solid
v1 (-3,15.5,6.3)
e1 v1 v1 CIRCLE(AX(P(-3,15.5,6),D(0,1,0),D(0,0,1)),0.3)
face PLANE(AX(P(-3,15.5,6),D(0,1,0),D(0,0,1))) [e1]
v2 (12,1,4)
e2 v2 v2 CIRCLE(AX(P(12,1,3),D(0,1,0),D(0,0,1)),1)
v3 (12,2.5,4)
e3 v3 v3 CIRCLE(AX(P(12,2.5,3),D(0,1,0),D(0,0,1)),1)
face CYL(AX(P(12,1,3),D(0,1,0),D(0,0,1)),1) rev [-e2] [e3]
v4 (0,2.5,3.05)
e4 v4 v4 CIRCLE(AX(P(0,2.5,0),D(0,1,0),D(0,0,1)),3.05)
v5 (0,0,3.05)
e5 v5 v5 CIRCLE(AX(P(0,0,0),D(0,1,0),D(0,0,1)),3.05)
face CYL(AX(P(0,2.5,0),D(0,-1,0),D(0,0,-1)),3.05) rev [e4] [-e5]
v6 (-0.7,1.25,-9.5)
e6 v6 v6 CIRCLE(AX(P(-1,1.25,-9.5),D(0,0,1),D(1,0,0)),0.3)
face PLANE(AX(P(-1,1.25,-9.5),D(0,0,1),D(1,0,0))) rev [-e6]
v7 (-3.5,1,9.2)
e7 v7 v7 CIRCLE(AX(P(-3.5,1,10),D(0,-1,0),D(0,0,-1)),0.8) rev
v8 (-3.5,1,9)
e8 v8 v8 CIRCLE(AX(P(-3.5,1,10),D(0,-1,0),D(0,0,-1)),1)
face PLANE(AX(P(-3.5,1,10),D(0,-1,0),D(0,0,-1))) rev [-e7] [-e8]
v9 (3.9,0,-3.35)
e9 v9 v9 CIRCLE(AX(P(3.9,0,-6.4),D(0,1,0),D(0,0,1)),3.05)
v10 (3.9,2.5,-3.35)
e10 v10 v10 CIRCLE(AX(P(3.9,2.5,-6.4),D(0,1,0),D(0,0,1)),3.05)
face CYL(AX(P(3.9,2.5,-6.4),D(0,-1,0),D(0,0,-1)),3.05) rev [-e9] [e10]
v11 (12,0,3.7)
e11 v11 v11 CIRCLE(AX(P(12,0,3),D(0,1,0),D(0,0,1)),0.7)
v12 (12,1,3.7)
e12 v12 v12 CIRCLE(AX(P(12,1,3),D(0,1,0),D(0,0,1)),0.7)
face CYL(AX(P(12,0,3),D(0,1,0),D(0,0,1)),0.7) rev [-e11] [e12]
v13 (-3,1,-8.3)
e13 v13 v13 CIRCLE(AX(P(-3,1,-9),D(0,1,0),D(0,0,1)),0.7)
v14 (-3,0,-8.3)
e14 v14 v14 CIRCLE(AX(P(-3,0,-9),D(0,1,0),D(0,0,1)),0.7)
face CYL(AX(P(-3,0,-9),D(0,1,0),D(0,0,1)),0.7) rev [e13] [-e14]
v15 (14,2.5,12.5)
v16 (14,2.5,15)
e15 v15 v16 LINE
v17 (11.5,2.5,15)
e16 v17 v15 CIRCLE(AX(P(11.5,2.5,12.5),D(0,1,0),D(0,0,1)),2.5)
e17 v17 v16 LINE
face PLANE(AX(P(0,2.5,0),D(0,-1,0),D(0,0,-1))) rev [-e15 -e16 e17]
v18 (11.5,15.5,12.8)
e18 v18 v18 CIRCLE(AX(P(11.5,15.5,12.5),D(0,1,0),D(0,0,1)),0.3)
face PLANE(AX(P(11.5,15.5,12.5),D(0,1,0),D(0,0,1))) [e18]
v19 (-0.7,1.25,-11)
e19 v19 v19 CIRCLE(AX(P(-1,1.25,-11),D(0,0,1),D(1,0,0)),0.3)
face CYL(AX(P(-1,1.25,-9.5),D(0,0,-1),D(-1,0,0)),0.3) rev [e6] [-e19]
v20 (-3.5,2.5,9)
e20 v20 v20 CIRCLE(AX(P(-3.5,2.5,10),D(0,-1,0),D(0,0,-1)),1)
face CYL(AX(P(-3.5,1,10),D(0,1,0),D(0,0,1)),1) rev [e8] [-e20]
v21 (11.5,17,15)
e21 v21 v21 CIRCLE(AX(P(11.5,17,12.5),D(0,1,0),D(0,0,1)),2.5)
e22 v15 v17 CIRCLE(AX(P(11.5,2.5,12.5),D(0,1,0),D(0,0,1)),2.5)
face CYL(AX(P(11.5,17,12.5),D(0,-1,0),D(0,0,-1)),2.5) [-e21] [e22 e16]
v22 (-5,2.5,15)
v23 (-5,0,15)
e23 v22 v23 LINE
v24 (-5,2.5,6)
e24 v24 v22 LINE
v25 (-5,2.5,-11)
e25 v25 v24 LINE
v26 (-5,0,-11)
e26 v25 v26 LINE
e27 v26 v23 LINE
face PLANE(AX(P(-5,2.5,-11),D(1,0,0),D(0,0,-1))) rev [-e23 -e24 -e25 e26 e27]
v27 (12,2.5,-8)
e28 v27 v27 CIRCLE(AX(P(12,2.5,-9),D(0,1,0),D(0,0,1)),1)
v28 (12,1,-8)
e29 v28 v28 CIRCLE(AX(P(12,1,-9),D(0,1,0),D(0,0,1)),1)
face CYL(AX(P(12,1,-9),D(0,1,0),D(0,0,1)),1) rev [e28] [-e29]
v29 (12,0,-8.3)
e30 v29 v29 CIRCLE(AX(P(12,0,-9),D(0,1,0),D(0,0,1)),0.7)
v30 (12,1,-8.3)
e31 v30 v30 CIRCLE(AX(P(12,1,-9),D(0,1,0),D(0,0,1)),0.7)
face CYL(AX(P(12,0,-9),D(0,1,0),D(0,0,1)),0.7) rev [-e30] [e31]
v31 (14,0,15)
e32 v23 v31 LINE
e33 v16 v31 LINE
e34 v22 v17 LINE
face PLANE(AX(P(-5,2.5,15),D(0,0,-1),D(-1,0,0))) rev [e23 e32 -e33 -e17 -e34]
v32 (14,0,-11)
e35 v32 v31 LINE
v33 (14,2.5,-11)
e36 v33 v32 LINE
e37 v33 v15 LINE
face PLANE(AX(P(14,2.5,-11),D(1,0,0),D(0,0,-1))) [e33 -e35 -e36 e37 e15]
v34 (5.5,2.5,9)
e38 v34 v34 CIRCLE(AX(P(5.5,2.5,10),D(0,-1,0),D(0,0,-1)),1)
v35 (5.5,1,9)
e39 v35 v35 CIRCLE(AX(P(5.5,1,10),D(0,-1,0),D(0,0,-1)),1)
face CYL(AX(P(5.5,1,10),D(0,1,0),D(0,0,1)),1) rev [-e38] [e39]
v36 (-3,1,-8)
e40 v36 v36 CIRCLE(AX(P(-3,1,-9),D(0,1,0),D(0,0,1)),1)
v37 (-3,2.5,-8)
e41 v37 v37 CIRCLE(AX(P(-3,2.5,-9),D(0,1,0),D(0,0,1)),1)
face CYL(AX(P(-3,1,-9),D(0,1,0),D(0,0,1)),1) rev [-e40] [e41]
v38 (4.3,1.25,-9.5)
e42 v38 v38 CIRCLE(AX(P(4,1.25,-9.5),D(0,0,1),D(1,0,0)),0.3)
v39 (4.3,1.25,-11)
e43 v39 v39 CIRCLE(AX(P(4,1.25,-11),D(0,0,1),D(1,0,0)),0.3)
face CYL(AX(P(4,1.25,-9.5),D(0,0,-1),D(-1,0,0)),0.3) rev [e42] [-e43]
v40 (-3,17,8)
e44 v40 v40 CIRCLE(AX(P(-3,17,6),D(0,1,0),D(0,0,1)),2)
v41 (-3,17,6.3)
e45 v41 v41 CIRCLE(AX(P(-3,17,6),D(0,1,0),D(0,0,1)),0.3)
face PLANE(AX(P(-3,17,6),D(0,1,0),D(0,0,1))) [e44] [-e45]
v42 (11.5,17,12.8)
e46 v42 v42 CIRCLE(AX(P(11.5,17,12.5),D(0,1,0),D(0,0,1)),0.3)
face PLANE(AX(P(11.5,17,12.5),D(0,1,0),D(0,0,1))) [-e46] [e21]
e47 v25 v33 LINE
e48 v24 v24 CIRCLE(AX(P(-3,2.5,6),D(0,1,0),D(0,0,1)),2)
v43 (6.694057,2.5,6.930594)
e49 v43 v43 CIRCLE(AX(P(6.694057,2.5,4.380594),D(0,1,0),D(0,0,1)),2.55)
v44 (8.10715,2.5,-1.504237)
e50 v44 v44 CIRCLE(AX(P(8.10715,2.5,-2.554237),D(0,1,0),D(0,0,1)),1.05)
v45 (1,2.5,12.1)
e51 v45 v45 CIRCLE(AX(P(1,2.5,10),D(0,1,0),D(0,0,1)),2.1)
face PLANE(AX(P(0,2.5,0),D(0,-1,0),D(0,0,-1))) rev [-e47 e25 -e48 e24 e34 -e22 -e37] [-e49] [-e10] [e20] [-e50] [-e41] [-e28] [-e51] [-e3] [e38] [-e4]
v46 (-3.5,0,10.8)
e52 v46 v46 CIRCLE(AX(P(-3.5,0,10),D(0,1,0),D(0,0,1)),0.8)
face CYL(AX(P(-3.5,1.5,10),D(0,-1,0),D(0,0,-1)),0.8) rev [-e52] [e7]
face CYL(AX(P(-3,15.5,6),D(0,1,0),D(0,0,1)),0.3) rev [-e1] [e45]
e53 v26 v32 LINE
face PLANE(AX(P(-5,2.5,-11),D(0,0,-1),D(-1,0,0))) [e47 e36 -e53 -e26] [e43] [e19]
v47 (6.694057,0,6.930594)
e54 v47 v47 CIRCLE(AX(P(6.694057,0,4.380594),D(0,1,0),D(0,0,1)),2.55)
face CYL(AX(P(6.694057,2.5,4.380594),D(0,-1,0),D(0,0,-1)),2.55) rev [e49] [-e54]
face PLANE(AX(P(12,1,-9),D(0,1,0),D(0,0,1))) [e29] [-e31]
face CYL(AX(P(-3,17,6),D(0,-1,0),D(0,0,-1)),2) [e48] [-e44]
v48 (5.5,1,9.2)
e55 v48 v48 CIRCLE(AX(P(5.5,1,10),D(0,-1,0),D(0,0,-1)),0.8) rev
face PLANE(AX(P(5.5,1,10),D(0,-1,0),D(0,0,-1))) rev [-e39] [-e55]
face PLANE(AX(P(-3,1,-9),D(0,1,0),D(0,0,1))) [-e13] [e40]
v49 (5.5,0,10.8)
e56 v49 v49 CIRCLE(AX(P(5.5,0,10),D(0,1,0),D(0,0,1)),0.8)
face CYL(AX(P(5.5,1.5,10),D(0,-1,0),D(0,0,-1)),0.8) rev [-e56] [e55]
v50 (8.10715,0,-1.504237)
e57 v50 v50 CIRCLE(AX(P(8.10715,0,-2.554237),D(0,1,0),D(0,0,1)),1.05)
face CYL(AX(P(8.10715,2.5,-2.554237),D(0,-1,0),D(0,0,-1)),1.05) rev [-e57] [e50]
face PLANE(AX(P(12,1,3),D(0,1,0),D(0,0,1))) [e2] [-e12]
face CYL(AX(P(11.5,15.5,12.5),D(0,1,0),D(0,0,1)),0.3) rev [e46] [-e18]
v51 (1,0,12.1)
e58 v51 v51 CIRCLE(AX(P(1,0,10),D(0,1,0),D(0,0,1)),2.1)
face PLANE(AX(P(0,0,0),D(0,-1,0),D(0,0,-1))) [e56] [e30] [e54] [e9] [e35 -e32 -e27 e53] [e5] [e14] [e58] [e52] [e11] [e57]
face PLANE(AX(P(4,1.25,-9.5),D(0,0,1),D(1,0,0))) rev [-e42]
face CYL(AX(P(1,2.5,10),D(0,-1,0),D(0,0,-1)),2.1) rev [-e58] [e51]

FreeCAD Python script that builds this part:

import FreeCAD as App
import Part
import Sketcher
from FreeCAD import Vector
Q = App.Units.Quantity

doc = App.newDocument("Part")
body = doc.addObject("PartDesign::Body", "Body")

# Sketch on XZ plane
sketch1 = body.newObject("Sketcher::SketchObject", "Sketch")
sketch1.AttachmentSupport = (doc.getObject("XZ_Plane"), [""])
sketch1.MapMode = "FlatFace"
sketch1.addGeometry(Part.LineSegment(Vector(-5, -11, 0), Vector(-5, 15, 0)), False)
sketch1.addGeometry(Part.LineSegment(Vector(-5, 15, 0), Vector(14, 15, 0)), False)
sketch1.addGeometry(Part.LineSegment(Vector(14, 15, 0), Vector(14, -11, 0)), False)
sketch1.addGeometry(Part.LineSegment(Vector(14, -11, 0), Vector(-5, -11, 0)), False)
sketch1.addGeometry(Part.Circle(Vector(1, 10, 0), Vector(0, 0, 1), 2.1), False)
sketch1.addGeometry(Part.Circle(Vector(6.7, 4.4, 0), Vector(0, 0, 1), 2.5), False)
sketch1.addGeometry(Part.Circle(Vector(0, 0, 0), Vector(0, 0, 1), 3), False)
sketch1.addGeometry(Part.Circle(Vector(8.1, -2.6, 0), Vector(0, 0, 1), 1.1), False)
sketch1.addGeometry(Part.Circle(Vector(3.9, -6.4, 0), Vector(0, 0, 1), 3), False)
sketch1.addConstraint(Sketcher.Constraint("Coincident", 0, 2, 1, 1))
sketch1.addConstraint(Sketcher.Constraint("Coincident", 1, 2, 2, 1))
sketch1.addConstraint(Sketcher.Constraint("Coincident", 2, 2, 3, 1))
sketch1.addConstraint(Sketcher.Constraint("Coincident", 3, 2, 0, 1))
sketch1.addConstraint(Sketcher.Constraint("Vertical", 0))
sketch1.addConstraint(Sketcher.Constraint("Horizontal", 1))
sketch1.addConstraint(Sketcher.Constraint("Vertical", 2))
sketch1.addConstraint(Sketcher.Constraint("Horizontal", 3))
sketch1.addConstraint(Sketcher.Constraint("Coincident", 6, 3, -1, 1))
sketch1.addConstraint(Sketcher.Constraint("Equal", 6, 8))
sketch1.addConstraint(Sketcher.Constraint("Diameter", 4, Q("4.2 mm")))
sketch1.addConstraint(Sketcher.Constraint("Diameter", 5, Q("5.1 mm")))
sketch1.addConstraint(Sketcher.Constraint("Diameter", 6, Q("6.1 mm")))
sketch1.addConstraint(Sketcher.Constraint("Diameter", 7, Q("2.1 mm")))
sketch1.addConstraint(Sketcher.Constraint("DistanceX", 1, 1, 1, 2, Q("19 mm")))
sketch1.addConstraint(Sketcher.Constraint("DistanceY", 0, 1, 0, 2, Q("26 mm")))
sketch1.addConstraint(Sketcher.Constraint("DistanceX", -1, 1, 4, 3, Q("1 mm")))
sketch1.addConstraint(Sketcher.Constraint("DistanceY", -1, 1, 4, 3, Q("10 mm")))
sketch1.addConstraint(Sketcher.Constraint("DistanceX", 0, 2, -1, 1, Q("5 mm")))
sketch1.addConstraint(Sketcher.Constraint("DistanceY", -1, 1, 0, 2, Q("15 mm")))
sketch1.addConstraint(Sketcher.Constraint("DistanceX", -1, 1, 8, 3, Q("3.9 mm")))
sketch1.addConstraint(Sketcher.Constraint("DistanceY", 8, 3, -1, 1, Q("6.4 mm")))
sketch1.addConstraint(Sketcher.Constraint("DistanceX", -1, 1, 7, 3, Q("8.10715 mm")))
sketch1.addConstraint(Sketcher.Constraint("DistanceY", 7, 3, 5, 3, Q("6.934831 mm")))
sketch1.addConstraint(Sketcher.Constraint("DistanceX", -1, 1, 5, 3, Q("6.694057 mm")))
sketch1.addConstraint(Sketcher.Constraint("DistanceY", -1, 1, 5, 3, Q("4.380594 mm")))
pad1 = body.newObject("PartDesign::Pad", "Pad")
pad1.Profile = sketch1
pad1.Length = 2.5
pad1.Reversed = True

# Sketch on XZ plane
sketch2 = body.newObject("Sketcher::SketchObject", "Sketch001")
sketch2.AttachmentSupport = (doc.getObject("XZ_Plane"), [""])
sketch2.MapMode = "FlatFace"
sketch2.AttachmentOffset = App.Placement(Vector(0, 0, -2.5), App.Rotation())
sketch2.addGeometry(Part.Circle(Vector(-3.5, 10, 0), Vector(0, 0, 1), 1), False)
sketch2.addGeometry(Part.Circle(Vector(5.5, 10, 0), Vector(0, 0, 1), 1), False)
sketch2.addConstraint(Sketcher.Constraint("Equal", 0, 1))
sketch2.addConstraint(Sketcher.Constraint("Horizontal", 0, 3, 1, 3))
sketch2.addConstraint(Sketcher.Constraint("Diameter", 0, Q("2 mm")))
sketch2.addConstraint(Sketcher.Constraint("DistanceY", -1, 1, 0, 3, Q("10 mm")))
sketch2.addConstraint(Sketcher.Constraint("DistanceX", 0, 3, 1, 3, Q("9 mm")))
sketch2.addConstraint(Sketcher.Constraint("DistanceX", 0, 3, -1, 1, Q("3.5 mm")))
pocket1 = body.newObject("PartDesign::Pocket", "Pocket")
pocket1.Profile = sketch2
pocket1.Length = 1.5
pocket1.Reversed = True

# Sketch on XZ plane
sketch3 = body.newObject("Sketcher::SketchObject", "Sketch002")
sketch3.AttachmentSupport = (doc.getObject("XZ_Plane"), [""])
sketch3.MapMode = "FlatFace"
sketch3.addGeometry(Part.Circle(Vector(-3.5, 10, 0), Vector(0, 0, 1), 0.8), False)
sketch3.addGeometry(Part.Circle(Vector(5.5, 10, 0), Vector(0, 0, 1), 0.8), False)
sketch3.addConstraint(Sketcher.Constraint("Equal", 0, 1))
sketch3.addConstraint(Sketcher.Constraint("Horizontal", 0, 3, 1, 3))
sketch3.addConstraint(Sketcher.Constraint("Diameter", 0, Q("1.6 mm")))
sketch3.addConstraint(Sketcher.Constraint("DistanceY", -1, 1, 0, 3, Q("10 mm")))
sketch3.addConstraint(Sketcher.Constraint("DistanceX", 0, 3, 1, 3, Q("9 mm")))
sketch3.addConstraint(Sketcher.Constraint("DistanceX", 0, 3, -1, 1, Q("3.5 mm")))
pocket2 = body.newObject("PartDesign::Pocket", "Pocket001")
pocket2.Profile = sketch3
pocket2.Length = 1.5

# Sketch on XZ plane
sketch4 = body.newObject("Sketcher::SketchObject", "Sketch003")
sketch4.AttachmentSupport = (doc.getObject("XZ_Plane"), [""])
sketch4.MapMode = "FlatFace"
sketch4.AttachmentOffset = App.Placement(Vector(0, 0, -2.5), App.Rotation())
sketch4.addGeometry(Part.Circle(Vector(11.5, 12.5, 0), Vector(0, 0, 1), 2.5), False)
sketch4.addGeometry(Part.Circle(Vector(-3, 6, 0), Vector(0, 0, 1), 2), False)
sketch4.addConstraint(Sketcher.Constraint("Diameter", 0, Q("5 mm")))
sketch4.addConstraint(Sketcher.Constraint("Diameter", 1, Q("4 mm")))
sketch4.addConstraint(Sketcher.Constraint("DistanceX", 1, 3, -1, 1, Q("3 mm")))
sketch4.addConstraint(Sketcher.Constraint("DistanceY", -1, 1, 1, 3, Q("6 mm")))
sketch4.addConstraint(Sketcher.Constraint("DistanceX", -1, 1, 0, 3, Q("11.5 mm")))
sketch4.addConstraint(Sketcher.Constraint("DistanceY", -1, 1, 0, 3, Q("12.5 mm")))
pad2 = body.newObject("PartDesign::Pad", "Pad001")
pad2.Profile = sketch4
pad2.Length = 14.5
pad2.Reversed = True

# Sketch on XZ plane
sketch5 = body.newObject("Sketcher::SketchObject", "Sketch004")
sketch5.AttachmentSupport = (doc.getObject("XZ_Plane"), [""])
sketch5.MapMode = "FlatFace"
sketch5.AttachmentOffset = App.Placement(Vector(0, 0, -17), App.Rotation())
sketch5.addGeometry(Part.Circle(Vector(11.5, 12.5, 0), Vector(0, 0, 1), 0.3), False)
sketch5.addGeometry(Part.Circle(Vector(-3, 6, 0), Vector(0, 0, 1), 0.3), False)
sketch5.addConstraint(Sketcher.Constraint("Equal", 0, 1))
sketch5.addConstraint(Sketcher.Constraint("Diameter", 0, Q("0.6 mm")))
sketch5.addConstraint(Sketcher.Constraint("DistanceX", 1, 3, -1, 1, Q("3 mm")))
sketch5.addConstraint(Sketcher.Constraint("DistanceY", -1, 1, 1, 3, Q("6 mm")))
sketch5.addConstraint(Sketcher.Constraint("DistanceX", -1, 1, 0, 3, Q("11.5 mm")))
sketch5.addConstraint(Sketcher.Constraint("DistanceY", -1, 1, 0, 3, Q("12.5 mm")))
pocket3 = body.newObject("PartDesign::Pocket", "Pocket002")
pocket3.Profile = sketch5
pocket3.Length = 1.5
pocket3.Reversed = True

# Sketch on XZ plane
sketch6 = body.newObject("Sketcher::SketchObject", "Sketch005")
sketch6.AttachmentSupport = (doc.getObject("XZ_Plane"), [""])
sketch6.MapMode = "FlatFace"
sketch6.AttachmentOffset = App.Placement(Vector(0, 0, -2.5), App.Rotation())
sketch6.addGeometry(Part.Circle(Vector(12, -9, 0), Vector(0, 0, 1), 1), False)
sketch6.addGeometry(Part.Circle(Vector(-3, -9, 0), Vector(0, 0, 1), 1), False)
sketch6.addGeometry(Part.Circle(Vector(12, 3, 0), Vector(0, 0, 1), 1), False)
sketch6.addConstraint(Sketcher.Constraint("Equal", 0, 1))
sketch6.addConstraint(Sketcher.Constraint("Equal", 1, 2))
sketch6.addConstraint(Sketcher.Constraint("Horizontal", 0, 3, 1, 3))
sketch6.addConstraint(Sketcher.Constraint("Vertical", 0, 3, 2, 3))
sketch6.addConstraint(Sketcher.Constraint("Diameter", 0, Q("2 mm")))
sketch6.addConstraint(Sketcher.Constraint("DistanceX", -1, 1, 0, 3, Q("12 mm")))
sketch6.addConstraint(Sketcher.Constraint("DistanceY", 0, 3, -1, 1, Q("9 mm")))
sketch6.addConstraint(Sketcher.Constraint("DistanceX", 1, 3, -1, 1, Q("3 mm")))
sketch6.addConstraint(Sketcher.Constraint("DistanceY", -1, 1, 2, 3, Q("3 mm")))
pocket4 = body.newObject("PartDesign::Pocket", "Pocket003")
pocket4.Profile = sketch6
pocket4.Length = 1.5
pocket4.Reversed = True

# Sketch on XZ plane
sketch7 = body.newObject("Sketcher::SketchObject", "Sketch006")
sketch7.AttachmentSupport = (doc.getObject("XZ_Plane"), [""])
sketch7.MapMode = "FlatFace"
sketch7.AttachmentOffset = App.Placement(Vector(0, 0, -2.5), App.Rotation())
sketch7.addGeometry(Part.Circle(Vector(12, -9, 0), Vector(0, 0, 1), 0.7), False)
sketch7.addGeometry(Part.Circle(Vector(-3, -9, 0), Vector(0, 0, 1), 0.7), False)
sketch7.addGeometry(Part.Circle(Vector(12, 3, 0), Vector(0, 0, 1), 0.7), False)
sketch7.addConstraint(Sketcher.Constraint("Equal", 0, 1))
sketch7.addConstraint(Sketcher.Constraint("Equal", 1, 2))
sketch7.addConstraint(Sketcher.Constraint("Horizontal", 0, 3, 1, 3))
sketch7.addConstraint(Sketcher.Constraint("Vertical", 0, 3, 2, 3))
sketch7.addConstraint(Sketcher.Constraint("Diameter", 0, Q("1.4 mm")))
sketch7.addConstraint(Sketcher.Constraint("DistanceX", -1, 1, 0, 3, Q("12 mm")))
sketch7.addConstraint(Sketcher.Constraint("DistanceY", 0, 3, -1, 1, Q("9 mm")))
sketch7.addConstraint(Sketcher.Constraint("DistanceX", 1, 3, -1, 1, Q("3 mm")))
sketch7.addConstraint(Sketcher.Constraint("DistanceY", -1, 1, 2, 3, Q("3 mm")))
pocket5 = body.newObject("PartDesign::Pocket", "Pocket004")
pocket5.Profile = sketch7
pocket5.Type = "ThroughAll"
pocket5.Reversed = True

# Sketch on XY plane
sketch8 = body.newObject("Sketcher::SketchObject", "Sketch007")
sketch8.AttachmentSupport = (doc.getObject("XY_Plane"), [""])
sketch8.MapMode = "FlatFace"
sketch8.AttachmentOffset = App.Placement(Vector(0, 0, -11), App.Rotation())
sketch8.addGeometry(Part.Circle(Vector(-1, 1.25, 0), Vector(0, 0, 1), 0.3), False)
sketch8.addGeometry(Part.Circle(Vector(4, 1.25, 0), Vector(0, 0, 1), 0.3), False)
sketch8.addConstraint(Sketcher.Constraint("Equal", 0, 1))
sketch8.addConstraint(Sketcher.Constraint("Horizontal", 0, 3, 1, 3))
sketch8.addConstraint(Sketcher.Constraint("Diameter", 0, Q("0.6 mm")))
sketch8.addConstraint(Sketcher.Constraint("DistanceX", 0, 3, -1, 1, Q("1 mm")))
sketch8.addConstraint(Sketcher.Constraint("DistanceX", -1, 1, 1, 3, Q("4 mm")))
sketch8.addConstraint(Sketcher.Constraint("DistanceY", -1, 1, 0, 3, Q("1.25 mm")))
pocket6 = body.newObject("PartDesign::Pocket", "Pocket005")
pocket6.Profile = sketch8
pocket6.Length = 1.5
pocket6.Reversed = True

doc.recompute()
